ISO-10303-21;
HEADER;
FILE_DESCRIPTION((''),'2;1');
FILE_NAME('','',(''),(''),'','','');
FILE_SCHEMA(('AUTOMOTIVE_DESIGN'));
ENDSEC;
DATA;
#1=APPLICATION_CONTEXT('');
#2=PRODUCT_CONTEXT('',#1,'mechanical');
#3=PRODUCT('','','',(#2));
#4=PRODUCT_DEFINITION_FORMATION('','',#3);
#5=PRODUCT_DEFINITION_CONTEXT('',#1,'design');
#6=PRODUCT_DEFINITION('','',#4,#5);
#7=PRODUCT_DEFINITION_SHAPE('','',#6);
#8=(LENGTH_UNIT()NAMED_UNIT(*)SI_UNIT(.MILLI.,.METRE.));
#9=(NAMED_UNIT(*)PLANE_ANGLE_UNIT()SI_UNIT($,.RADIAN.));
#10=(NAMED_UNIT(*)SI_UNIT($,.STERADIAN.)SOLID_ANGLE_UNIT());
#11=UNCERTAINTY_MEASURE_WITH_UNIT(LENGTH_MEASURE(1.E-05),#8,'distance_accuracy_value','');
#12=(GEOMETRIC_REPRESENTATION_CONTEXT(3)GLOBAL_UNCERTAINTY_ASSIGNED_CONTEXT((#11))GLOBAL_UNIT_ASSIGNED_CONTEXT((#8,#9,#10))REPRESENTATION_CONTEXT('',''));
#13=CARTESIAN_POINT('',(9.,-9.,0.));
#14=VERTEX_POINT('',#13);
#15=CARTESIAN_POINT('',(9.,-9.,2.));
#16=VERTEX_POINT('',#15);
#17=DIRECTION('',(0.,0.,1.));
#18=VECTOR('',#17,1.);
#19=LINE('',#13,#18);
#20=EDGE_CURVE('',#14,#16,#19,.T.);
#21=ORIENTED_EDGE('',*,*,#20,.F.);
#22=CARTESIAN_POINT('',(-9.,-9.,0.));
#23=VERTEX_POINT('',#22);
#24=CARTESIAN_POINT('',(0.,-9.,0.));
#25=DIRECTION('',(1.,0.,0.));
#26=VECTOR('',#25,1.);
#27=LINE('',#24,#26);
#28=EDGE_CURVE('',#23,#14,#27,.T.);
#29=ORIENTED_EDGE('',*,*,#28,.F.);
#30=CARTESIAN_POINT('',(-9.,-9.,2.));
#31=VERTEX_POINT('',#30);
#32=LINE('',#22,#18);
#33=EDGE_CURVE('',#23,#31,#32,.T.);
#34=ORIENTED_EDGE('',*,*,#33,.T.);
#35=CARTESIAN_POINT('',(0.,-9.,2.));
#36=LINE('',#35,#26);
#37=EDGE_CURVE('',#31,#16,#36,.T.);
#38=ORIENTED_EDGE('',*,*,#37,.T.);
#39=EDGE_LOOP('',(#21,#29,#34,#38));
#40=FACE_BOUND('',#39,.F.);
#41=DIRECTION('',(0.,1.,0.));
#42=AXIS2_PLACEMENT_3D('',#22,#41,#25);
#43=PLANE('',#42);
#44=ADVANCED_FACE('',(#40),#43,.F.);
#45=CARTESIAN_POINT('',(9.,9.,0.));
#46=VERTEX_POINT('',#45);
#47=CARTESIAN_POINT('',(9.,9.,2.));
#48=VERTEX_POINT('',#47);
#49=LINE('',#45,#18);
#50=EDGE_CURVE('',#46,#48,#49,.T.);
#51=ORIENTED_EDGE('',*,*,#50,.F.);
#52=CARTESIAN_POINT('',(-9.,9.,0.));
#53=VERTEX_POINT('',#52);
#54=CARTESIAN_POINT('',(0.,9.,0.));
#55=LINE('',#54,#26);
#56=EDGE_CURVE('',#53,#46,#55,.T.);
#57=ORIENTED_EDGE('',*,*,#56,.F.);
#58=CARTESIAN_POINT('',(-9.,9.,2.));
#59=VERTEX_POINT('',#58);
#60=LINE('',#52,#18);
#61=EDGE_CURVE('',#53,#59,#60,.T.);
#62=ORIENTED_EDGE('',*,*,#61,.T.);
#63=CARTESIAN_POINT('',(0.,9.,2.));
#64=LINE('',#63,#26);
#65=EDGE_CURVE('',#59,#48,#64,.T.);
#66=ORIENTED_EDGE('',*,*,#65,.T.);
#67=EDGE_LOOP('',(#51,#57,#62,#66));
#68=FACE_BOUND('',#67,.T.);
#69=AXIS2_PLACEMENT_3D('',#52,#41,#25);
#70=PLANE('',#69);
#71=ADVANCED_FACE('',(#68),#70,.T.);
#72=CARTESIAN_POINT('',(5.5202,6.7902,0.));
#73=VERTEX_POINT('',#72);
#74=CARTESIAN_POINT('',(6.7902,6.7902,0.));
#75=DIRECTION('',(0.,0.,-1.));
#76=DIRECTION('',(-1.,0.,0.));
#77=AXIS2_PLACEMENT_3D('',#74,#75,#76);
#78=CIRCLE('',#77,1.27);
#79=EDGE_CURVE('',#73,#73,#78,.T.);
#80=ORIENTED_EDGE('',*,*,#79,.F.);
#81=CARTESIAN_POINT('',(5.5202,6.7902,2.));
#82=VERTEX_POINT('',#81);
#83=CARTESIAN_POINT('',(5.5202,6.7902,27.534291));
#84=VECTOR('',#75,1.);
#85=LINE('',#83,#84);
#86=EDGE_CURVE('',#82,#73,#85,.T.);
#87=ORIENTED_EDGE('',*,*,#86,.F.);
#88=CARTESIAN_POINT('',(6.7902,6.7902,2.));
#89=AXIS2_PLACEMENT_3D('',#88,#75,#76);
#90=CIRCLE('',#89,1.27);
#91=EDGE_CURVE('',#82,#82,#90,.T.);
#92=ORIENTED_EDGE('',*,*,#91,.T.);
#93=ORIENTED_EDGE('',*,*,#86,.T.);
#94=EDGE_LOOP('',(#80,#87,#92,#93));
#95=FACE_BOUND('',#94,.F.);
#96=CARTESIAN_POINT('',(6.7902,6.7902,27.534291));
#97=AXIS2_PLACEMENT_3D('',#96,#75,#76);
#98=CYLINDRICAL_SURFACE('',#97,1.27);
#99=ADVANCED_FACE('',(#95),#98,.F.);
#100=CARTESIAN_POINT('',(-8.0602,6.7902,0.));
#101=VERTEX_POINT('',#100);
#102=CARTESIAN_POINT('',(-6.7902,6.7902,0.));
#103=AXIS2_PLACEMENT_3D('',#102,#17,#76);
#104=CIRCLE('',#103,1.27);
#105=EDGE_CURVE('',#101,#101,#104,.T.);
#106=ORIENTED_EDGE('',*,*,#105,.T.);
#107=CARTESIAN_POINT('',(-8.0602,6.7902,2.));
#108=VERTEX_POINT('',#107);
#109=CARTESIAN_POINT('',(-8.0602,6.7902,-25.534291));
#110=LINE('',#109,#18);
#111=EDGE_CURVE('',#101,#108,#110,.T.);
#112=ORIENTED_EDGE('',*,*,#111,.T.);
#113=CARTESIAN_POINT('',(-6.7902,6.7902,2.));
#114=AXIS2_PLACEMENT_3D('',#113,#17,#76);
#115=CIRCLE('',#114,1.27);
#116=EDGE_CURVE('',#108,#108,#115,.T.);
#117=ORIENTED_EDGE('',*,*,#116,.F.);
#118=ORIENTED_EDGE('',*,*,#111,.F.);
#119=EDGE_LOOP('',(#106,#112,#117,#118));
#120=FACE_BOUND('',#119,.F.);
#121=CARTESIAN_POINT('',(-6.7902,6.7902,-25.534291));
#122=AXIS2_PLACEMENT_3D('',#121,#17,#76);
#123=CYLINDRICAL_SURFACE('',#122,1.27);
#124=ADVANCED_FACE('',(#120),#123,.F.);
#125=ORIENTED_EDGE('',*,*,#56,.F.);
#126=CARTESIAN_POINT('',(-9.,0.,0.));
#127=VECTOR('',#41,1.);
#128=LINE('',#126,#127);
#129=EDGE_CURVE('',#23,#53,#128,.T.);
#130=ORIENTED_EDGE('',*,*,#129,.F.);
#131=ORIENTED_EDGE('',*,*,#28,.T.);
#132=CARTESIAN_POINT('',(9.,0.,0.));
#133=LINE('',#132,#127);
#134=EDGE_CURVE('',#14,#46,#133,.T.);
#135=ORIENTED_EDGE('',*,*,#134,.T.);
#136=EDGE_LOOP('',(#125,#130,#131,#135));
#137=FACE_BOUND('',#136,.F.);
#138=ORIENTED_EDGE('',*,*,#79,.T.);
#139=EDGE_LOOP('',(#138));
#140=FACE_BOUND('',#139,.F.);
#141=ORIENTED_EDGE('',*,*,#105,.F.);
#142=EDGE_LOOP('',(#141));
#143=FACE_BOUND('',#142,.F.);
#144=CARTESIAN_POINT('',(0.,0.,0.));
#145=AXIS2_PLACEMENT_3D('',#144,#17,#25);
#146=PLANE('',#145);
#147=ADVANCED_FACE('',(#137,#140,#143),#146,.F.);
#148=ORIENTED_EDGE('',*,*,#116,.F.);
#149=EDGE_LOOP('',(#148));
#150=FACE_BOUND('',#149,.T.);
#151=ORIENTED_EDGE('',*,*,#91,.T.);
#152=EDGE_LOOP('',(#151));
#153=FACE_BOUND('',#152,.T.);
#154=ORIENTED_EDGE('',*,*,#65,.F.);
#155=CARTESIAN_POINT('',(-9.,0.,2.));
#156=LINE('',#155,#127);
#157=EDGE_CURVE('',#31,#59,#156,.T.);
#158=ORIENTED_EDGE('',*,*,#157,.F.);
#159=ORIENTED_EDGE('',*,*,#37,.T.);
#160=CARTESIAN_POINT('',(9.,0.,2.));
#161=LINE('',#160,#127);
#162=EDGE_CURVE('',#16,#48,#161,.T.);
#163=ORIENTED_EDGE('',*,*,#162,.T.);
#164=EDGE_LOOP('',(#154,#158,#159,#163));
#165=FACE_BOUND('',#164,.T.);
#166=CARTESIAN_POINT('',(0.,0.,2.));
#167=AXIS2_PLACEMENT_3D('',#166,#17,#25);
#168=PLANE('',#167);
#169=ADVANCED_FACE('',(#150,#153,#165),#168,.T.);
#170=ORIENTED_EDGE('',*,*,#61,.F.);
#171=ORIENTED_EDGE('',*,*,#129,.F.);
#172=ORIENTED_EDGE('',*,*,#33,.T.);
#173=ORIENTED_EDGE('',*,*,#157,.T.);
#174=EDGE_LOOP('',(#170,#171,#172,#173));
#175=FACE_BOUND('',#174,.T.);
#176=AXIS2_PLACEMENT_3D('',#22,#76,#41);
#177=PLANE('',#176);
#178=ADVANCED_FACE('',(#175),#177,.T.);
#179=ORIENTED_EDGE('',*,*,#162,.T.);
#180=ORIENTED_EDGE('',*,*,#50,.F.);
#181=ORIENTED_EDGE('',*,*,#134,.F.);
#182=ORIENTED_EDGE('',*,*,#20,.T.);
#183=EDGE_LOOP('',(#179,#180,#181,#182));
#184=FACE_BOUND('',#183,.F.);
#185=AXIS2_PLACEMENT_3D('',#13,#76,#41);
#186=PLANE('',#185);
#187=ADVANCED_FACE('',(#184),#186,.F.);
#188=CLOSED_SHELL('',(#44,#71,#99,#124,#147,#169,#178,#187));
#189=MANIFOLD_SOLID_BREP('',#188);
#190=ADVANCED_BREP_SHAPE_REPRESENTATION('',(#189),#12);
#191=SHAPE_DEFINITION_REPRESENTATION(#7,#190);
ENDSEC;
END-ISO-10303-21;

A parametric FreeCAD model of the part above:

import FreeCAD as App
import Part
import Sketcher


def add_polygon(sketch, points):
    """Adds a closed chain of lines whose ends are joined by coincident constraints."""
    first, n = sketch.GeometryCount, len(points)
    for a, b in zip(points, points[1:] + points[:1]):
        sketch.addGeometry(Part.LineSegment(App.Vector(*a, 0), App.Vector(*b, 0)), False)
    for i in range(n):
        sketch.addConstraint(Sketcher.Constraint("Coincident", first + i, 2, first + (i + 1) % n, 1))

doc = App.newDocument("Part")
body = doc.addObject("PartDesign::Body", "Body")

sketch1 = body.newObject("Sketcher::SketchObject", "Sketch")
sketch1.AttachmentSupport = (doc.getObject("XY_Plane"), [""])
sketch1.MapMode = "FlatFace"
add_polygon(sketch1, [(-9, 9), (-9, -9), (9, -9), (9, 9)])
sketch1.addConstraint([
    Sketcher.Constraint("Vertical", 0),
    Sketcher.Constraint("Horizontal", 1),
    Sketcher.Constraint("Vertical", 2),
    Sketcher.Constraint("Horizontal", 3),
    Sketcher.Constraint("Symmetric", 0, 2, 2, 2, -1, 1),
    Sketcher.Constraint("Equal", 3, 0),
    Sketcher.Constraint("DistanceX", 1, 1, 1, 2, 18.0),
])
pad1 = body.newObject("PartDesign::Pad", "Pad")
pad1.Profile = sketch1
pad1.Length = 2

sketch2 = body.newObject("Sketcher::SketchObject", "Sketch001")
sketch2.AttachmentSupport = (doc.getObject("XY_Plane"), [""])
sketch2.MapMode = "FlatFace"
sketch2.AttachmentOffset = App.Placement(App.Vector(0, 0, 2), App.Rotation())
sketch2.addGeometry(Part.Circle(App.Vector(6.8, 6.8, 0), App.Vector(0, 0, 1), 1.3), False)
sketch2.addConstraint([
    Sketcher.Constraint("Diameter", 0, 2.54),
    Sketcher.Constraint("DistanceX", -1, 1, 0, 3, 6.7902),
    Sketcher.Constraint("DistanceY", -1, 1, 0, 3, 6.7902),
])
doc.recompute()
hole = body.newObject("PartDesign::Hole", "Hole")
hole.Profile = sketch2
hole.ThreadType = "None"
hole.Diameter = 2.54
hole.DepthType = "ThroughAll"

sketch3 = body.newObject("Sketcher::SketchObject", "Sketch002")
sketch3.AttachmentSupport = (doc.getObject("XY_Plane"), [""])
sketch3.MapMode = "FlatFace"
sketch3.addGeometry(Part.Circle(App.Vector(-6.8, 6.8, 0), App.Vector(0, 0, 1), 1.3), False)
sketch3.addConstraint([
    Sketcher.Constraint("Diameter", 0, 2.54),
    Sketcher.Constraint("DistanceX", 0, 3, -1, 1, 6.7902),
    Sketcher.Constraint("DistanceY", -1, 1, 0, 3, 6.7902),
])
doc.recompute()
hole2 = body.newObject("PartDesign::Hole", "Hole001")
hole2.Profile = sketch3
hole2.ThreadType = "None"
hole2.Diameter = 2.54
hole2.DepthType = "ThroughAll"
hole2.Reversed = True

doc.recompute()
